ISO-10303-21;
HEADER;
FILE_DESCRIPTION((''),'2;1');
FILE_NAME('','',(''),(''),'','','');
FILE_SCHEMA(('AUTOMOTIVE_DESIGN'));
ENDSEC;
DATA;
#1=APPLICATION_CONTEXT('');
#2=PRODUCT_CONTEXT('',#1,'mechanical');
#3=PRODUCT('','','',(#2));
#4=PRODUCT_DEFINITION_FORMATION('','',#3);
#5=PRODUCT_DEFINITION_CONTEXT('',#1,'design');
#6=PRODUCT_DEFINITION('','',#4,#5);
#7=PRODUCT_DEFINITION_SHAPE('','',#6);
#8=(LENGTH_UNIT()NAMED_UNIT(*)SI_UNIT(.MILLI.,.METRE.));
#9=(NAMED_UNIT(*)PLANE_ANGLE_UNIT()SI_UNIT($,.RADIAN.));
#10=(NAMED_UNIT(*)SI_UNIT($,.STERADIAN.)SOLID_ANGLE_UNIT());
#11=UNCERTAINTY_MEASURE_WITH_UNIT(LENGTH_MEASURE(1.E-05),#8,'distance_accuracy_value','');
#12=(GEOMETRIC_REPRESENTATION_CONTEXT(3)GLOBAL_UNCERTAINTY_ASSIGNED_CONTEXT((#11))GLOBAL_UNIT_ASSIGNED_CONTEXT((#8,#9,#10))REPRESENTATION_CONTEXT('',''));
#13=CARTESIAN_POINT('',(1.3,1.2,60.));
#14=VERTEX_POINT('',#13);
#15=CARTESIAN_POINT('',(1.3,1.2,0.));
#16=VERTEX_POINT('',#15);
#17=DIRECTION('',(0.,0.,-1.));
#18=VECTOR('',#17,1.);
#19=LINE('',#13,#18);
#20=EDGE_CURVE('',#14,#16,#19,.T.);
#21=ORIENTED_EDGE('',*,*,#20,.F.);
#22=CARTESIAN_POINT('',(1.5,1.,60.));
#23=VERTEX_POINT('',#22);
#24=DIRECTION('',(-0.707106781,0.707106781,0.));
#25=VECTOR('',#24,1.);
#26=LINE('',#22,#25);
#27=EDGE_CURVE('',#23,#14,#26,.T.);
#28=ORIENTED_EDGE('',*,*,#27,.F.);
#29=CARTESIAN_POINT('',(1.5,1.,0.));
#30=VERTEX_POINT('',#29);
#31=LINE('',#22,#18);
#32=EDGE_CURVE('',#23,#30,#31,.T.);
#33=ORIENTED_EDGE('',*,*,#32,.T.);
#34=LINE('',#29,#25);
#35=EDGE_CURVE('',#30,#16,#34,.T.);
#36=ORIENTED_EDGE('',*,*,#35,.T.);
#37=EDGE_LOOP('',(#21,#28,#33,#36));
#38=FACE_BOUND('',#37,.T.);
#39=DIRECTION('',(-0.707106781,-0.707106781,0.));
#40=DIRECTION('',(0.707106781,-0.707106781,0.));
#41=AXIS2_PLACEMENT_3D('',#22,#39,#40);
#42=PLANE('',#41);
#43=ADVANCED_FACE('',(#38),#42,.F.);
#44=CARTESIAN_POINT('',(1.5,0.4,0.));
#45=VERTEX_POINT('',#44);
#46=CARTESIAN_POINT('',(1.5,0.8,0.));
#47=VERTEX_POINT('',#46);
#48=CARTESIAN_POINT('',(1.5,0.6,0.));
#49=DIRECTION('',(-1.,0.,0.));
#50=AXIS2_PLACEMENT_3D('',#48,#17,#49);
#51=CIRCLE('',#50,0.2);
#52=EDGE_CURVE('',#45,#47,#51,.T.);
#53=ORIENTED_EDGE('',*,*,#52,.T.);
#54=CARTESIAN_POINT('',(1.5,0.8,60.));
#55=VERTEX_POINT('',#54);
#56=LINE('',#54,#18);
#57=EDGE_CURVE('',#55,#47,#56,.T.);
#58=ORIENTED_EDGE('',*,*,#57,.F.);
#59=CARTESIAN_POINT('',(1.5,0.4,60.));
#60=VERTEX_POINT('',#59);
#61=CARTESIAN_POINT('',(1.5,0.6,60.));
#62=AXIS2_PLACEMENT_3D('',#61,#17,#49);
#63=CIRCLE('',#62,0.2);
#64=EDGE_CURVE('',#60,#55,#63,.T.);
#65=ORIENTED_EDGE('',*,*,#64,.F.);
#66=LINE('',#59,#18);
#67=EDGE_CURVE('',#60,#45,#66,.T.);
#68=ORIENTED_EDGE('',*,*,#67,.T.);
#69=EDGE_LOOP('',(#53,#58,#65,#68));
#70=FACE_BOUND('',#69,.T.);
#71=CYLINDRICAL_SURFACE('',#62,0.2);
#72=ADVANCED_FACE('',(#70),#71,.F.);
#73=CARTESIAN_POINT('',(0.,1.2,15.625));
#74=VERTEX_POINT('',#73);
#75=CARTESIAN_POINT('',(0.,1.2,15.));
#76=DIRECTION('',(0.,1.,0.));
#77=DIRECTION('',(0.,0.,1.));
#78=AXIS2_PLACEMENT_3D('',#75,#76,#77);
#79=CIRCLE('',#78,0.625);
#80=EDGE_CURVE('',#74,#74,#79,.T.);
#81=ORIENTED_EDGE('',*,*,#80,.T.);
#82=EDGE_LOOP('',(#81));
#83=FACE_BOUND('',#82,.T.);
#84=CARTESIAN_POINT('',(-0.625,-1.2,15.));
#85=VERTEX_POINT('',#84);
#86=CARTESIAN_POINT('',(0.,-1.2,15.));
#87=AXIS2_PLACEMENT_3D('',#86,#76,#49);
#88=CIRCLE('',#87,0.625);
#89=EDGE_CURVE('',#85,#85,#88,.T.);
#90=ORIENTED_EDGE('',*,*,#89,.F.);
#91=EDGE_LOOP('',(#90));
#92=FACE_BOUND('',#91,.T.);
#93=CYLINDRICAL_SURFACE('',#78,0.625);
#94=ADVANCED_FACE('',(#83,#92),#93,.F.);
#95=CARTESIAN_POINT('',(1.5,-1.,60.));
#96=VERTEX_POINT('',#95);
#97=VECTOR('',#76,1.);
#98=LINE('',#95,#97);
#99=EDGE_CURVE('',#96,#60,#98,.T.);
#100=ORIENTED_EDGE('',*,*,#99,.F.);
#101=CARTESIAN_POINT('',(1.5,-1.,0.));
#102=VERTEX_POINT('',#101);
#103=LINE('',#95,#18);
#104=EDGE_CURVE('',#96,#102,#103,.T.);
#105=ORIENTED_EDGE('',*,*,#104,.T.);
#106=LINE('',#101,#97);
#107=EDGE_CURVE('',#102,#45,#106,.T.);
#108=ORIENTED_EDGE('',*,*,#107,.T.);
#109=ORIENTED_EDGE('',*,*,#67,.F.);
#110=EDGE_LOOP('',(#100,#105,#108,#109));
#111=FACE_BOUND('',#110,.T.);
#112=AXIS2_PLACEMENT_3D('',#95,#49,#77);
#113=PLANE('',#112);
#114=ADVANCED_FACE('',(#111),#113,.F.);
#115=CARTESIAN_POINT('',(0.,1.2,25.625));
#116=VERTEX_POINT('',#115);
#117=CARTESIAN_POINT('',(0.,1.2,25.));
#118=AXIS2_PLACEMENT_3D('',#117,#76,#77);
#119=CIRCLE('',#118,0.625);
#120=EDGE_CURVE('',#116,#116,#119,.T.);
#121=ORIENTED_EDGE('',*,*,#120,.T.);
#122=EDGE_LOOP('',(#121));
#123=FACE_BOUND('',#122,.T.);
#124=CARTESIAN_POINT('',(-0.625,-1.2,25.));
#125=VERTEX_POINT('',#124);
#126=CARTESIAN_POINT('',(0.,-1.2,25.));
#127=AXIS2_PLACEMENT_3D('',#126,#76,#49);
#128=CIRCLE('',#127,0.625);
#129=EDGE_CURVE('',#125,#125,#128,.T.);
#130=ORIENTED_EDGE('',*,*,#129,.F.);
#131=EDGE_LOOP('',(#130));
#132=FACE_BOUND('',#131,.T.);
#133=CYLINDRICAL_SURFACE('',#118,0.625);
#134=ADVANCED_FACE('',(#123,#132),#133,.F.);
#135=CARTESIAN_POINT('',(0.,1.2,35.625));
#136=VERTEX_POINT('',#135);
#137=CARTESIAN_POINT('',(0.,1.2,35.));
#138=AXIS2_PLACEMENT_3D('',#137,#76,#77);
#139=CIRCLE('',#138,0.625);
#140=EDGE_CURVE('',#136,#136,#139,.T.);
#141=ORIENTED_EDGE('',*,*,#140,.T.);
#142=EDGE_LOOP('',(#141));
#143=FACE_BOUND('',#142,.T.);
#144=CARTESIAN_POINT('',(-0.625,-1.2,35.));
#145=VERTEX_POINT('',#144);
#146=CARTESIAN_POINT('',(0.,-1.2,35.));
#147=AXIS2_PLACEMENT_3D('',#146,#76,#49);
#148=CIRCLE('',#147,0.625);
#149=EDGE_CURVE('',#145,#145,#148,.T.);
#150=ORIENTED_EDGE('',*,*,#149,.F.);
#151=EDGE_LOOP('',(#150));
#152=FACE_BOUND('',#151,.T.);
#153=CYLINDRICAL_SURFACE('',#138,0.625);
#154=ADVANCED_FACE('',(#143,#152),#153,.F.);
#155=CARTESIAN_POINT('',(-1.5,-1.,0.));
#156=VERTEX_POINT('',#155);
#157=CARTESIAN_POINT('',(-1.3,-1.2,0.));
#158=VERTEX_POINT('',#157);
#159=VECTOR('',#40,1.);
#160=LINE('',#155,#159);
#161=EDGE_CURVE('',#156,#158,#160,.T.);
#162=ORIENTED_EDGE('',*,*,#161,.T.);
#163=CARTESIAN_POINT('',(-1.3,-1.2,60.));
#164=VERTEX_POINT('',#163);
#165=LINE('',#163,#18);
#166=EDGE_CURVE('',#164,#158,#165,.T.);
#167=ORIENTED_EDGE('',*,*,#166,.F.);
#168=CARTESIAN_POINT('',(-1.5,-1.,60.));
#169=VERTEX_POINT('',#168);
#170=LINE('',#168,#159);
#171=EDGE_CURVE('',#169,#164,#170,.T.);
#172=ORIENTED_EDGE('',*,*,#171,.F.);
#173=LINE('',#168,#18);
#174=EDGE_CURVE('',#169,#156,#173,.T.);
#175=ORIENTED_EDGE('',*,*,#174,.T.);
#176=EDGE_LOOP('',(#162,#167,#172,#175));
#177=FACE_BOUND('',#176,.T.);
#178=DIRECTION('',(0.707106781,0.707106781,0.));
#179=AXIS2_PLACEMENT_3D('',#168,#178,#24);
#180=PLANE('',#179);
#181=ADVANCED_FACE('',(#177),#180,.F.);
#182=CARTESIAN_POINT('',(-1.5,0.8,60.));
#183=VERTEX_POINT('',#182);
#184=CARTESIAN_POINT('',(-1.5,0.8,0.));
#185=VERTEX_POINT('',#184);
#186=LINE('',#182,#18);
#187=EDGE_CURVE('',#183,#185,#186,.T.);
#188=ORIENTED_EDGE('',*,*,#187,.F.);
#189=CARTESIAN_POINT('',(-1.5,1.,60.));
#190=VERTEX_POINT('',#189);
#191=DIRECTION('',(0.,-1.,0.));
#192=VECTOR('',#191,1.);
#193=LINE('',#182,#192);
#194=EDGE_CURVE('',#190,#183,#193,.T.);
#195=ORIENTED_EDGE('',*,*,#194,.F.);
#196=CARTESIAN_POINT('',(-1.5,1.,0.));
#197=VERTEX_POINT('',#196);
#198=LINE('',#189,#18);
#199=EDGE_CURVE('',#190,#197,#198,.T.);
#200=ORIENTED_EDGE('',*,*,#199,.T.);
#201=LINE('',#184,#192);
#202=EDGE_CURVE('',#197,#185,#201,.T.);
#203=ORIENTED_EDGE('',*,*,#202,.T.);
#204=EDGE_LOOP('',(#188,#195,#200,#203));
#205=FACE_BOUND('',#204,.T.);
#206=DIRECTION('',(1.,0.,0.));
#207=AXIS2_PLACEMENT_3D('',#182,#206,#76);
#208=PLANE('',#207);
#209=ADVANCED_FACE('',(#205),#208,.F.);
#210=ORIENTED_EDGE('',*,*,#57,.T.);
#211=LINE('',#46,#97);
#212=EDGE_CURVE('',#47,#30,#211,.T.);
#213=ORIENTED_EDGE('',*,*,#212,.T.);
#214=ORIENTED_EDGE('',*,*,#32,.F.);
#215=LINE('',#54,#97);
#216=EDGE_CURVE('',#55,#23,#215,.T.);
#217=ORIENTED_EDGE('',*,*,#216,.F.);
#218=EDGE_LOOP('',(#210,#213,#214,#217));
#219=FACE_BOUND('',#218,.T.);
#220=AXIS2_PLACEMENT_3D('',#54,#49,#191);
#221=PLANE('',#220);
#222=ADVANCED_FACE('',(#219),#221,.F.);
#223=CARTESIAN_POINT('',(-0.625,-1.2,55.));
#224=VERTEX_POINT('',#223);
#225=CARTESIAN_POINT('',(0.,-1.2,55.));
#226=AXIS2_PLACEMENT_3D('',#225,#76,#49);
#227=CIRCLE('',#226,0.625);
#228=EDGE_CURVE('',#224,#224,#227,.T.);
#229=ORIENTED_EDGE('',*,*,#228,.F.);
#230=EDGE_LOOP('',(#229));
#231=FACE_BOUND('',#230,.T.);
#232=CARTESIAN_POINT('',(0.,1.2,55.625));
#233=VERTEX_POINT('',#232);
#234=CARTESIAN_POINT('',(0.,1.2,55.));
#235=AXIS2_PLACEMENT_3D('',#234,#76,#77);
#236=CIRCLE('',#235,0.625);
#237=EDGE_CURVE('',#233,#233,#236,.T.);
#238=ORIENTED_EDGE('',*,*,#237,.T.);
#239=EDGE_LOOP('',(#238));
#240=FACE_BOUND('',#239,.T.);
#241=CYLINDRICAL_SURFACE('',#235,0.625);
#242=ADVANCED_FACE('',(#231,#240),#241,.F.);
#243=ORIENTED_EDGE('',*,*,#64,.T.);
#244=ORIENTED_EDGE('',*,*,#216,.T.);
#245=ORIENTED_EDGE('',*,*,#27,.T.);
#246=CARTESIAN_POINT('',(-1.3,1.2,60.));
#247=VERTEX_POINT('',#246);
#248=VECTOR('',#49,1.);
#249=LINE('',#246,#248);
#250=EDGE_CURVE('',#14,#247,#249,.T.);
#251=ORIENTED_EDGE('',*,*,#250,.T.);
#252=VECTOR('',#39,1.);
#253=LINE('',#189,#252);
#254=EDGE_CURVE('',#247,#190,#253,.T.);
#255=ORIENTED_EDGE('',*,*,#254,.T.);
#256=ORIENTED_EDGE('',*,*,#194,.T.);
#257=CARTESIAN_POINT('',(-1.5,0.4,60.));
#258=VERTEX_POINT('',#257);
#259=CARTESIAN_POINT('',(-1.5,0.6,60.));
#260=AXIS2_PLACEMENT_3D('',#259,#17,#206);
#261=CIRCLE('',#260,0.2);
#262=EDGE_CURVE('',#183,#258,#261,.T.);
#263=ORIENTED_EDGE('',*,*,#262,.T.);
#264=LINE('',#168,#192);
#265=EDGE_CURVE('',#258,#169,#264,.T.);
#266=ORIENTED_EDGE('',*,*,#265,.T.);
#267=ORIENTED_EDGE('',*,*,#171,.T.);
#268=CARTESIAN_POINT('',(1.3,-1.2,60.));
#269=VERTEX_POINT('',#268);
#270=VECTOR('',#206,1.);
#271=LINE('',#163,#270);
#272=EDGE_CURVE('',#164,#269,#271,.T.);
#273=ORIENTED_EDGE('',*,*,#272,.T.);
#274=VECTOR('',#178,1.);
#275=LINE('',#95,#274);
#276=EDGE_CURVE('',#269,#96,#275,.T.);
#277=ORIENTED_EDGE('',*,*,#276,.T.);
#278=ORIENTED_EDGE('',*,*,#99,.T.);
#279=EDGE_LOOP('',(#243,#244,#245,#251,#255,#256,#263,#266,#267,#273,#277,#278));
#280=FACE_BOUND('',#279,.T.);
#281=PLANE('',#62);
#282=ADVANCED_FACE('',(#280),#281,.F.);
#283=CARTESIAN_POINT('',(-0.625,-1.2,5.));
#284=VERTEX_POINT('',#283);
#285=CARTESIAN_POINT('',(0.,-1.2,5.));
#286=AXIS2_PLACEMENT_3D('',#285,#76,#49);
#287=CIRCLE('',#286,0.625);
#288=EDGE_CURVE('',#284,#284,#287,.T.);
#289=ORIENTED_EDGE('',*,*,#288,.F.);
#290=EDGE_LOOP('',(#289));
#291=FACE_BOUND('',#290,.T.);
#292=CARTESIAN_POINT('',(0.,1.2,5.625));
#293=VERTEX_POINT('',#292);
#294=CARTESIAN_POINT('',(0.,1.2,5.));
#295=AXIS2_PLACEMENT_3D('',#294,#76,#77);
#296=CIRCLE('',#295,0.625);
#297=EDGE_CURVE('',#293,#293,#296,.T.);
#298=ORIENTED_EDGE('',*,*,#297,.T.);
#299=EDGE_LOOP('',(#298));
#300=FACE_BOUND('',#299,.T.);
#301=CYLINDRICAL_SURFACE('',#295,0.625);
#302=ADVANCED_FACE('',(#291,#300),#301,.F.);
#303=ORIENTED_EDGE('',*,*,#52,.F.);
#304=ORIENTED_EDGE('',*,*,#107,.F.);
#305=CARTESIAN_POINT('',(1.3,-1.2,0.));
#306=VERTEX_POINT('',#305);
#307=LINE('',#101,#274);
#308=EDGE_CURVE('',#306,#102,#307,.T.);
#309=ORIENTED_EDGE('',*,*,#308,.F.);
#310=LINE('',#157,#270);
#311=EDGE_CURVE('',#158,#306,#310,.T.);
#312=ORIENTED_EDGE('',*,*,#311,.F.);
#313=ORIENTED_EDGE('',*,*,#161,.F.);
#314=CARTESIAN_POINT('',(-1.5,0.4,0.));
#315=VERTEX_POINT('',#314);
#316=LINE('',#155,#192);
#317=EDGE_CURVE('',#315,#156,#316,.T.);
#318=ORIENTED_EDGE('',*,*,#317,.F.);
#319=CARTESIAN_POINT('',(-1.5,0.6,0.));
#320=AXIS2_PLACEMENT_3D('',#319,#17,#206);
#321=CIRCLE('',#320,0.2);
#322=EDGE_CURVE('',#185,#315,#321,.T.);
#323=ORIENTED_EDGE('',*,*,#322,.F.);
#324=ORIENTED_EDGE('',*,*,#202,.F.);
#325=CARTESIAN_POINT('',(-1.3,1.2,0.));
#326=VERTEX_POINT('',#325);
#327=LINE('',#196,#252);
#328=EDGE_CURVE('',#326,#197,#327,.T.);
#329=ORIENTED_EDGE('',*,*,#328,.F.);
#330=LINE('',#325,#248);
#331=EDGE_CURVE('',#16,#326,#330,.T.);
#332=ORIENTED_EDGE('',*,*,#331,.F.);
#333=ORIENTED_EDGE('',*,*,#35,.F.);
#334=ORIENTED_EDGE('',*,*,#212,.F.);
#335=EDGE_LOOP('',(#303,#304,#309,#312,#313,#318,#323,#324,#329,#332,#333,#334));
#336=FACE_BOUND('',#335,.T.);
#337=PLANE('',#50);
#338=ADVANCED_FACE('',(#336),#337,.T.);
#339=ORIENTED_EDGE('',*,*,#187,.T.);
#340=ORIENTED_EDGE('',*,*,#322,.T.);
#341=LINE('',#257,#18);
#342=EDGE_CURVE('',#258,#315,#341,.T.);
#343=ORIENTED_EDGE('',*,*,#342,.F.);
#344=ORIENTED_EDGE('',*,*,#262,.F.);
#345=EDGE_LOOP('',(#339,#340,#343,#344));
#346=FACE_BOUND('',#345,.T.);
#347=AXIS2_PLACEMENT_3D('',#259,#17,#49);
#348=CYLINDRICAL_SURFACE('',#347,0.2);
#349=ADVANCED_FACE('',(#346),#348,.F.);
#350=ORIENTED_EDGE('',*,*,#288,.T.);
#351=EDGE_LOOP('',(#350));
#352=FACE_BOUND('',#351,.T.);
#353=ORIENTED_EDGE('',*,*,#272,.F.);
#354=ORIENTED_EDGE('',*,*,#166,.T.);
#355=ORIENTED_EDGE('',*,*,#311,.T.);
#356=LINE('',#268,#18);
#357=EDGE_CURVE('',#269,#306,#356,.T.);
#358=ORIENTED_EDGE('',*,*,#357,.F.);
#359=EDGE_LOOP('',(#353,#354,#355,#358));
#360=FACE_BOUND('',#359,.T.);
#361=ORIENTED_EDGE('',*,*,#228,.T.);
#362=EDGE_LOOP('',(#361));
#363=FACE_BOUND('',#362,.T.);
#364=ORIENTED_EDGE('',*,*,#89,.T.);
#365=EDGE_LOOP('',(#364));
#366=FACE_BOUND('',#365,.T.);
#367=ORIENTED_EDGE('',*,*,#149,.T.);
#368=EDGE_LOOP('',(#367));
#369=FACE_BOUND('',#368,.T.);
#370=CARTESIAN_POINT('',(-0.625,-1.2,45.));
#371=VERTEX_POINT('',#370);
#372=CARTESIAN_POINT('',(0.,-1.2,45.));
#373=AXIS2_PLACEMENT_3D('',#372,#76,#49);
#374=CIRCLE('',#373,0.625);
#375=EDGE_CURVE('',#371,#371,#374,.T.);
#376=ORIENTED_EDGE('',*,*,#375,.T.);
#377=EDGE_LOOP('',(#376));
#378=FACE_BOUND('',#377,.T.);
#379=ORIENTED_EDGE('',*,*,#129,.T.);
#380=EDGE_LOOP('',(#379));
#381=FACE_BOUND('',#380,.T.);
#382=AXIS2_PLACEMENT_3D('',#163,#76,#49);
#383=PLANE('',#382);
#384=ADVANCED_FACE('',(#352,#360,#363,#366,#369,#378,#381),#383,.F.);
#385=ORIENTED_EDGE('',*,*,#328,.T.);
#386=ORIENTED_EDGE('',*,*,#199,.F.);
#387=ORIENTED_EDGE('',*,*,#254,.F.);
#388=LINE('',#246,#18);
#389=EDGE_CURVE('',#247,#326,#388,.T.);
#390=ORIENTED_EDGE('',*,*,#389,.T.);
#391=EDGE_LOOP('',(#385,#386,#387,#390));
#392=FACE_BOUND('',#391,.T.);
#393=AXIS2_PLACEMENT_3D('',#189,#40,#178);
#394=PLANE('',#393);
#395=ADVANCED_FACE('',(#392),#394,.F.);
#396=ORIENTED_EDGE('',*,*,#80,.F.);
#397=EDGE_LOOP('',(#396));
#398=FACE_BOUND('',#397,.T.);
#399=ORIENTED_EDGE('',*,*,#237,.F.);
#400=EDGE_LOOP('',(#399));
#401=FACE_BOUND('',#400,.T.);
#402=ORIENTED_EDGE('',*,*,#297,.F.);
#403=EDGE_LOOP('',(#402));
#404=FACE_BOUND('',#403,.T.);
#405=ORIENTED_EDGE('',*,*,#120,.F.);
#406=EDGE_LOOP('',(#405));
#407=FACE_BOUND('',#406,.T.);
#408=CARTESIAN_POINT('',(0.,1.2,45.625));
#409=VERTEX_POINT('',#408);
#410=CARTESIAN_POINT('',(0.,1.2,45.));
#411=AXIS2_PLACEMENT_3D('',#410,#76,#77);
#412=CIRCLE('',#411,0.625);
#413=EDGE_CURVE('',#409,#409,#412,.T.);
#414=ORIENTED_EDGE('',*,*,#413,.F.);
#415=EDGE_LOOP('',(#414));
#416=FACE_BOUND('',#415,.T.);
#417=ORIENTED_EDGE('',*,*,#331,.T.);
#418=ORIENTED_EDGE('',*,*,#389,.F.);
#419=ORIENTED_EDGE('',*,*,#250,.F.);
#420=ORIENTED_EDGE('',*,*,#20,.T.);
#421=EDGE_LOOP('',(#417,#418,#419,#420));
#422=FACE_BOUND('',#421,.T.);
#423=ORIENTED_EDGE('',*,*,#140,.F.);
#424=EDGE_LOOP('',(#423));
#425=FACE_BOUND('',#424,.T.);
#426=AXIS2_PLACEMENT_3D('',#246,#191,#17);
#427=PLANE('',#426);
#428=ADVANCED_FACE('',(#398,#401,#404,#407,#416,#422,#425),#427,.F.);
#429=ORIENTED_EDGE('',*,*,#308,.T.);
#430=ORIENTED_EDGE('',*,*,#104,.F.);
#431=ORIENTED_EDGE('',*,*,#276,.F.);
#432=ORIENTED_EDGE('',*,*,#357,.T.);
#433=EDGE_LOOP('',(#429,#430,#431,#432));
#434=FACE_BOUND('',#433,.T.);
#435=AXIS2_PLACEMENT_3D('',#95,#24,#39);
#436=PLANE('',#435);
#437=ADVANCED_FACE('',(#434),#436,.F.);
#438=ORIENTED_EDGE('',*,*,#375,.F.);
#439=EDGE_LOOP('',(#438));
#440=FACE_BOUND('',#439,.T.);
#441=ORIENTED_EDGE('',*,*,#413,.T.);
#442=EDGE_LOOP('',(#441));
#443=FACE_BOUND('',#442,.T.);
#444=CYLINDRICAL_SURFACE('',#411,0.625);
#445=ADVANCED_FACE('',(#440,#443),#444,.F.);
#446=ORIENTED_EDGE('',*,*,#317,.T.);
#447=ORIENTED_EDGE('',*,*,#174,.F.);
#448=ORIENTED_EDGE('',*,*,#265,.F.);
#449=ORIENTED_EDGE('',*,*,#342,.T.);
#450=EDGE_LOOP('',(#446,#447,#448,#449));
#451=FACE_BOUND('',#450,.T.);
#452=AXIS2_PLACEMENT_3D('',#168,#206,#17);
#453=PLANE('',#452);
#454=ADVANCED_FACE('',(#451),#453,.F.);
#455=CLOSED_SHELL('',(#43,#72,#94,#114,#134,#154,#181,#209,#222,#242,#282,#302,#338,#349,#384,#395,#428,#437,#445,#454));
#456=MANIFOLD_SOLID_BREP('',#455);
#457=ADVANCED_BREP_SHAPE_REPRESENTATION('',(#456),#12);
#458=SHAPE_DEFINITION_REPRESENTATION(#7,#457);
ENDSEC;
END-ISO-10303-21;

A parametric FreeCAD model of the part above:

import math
import FreeCAD as App
import Part
import Sketcher

doc = App.newDocument("Part")
body = doc.addObject("PartDesign::Body", "Body")

sketch1 = body.newObject("Sketcher::SketchObject", "Sketch")
sketch1.AttachmentSupport = (doc.getObject("XY_Plane"), [""])
sketch1.MapMode = "FlatFace"
sketch1.addGeometry([
    Part.LineSegment(App.Vector(-1.3, 1.2, 0), App.Vector(-1.5, 1, 0)),
    Part.LineSegment(App.Vector(-1.5, 1, 0), App.Vector(-1.5, 0.8, 0)),
    Part.ArcOfCircle(Part.Circle(App.Vector(-1.5, 0.6, 0), App.Vector(0, 0, 1), 0.2), math.radians(-90), math.radians(90)),
    Part.LineSegment(App.Vector(-1.5, 0.4, 0), App.Vector(-1.5, -1, 0)),
    Part.LineSegment(App.Vector(-1.5, -1, 0), App.Vector(-1.3, -1.2, 0)),
    Part.LineSegment(App.Vector(-1.3, -1.2, 0), App.Vector(1.3, -1.2, 0)),
    Part.LineSegment(App.Vector(1.3, -1.2, 0), App.Vector(1.5, -1, 0)),
    Part.LineSegment(App.Vector(1.5, -1, 0), App.Vector(1.5, 0.4, 0)),
    Part.ArcOfCircle(Part.Circle(App.Vector(1.5, 0.6, 0), App.Vector(0, 0, 1), 0.2), math.radians(90), math.radians(270)),
    Part.LineSegment(App.Vector(1.5, 0.8, 0), App.Vector(1.5, 1, 0)),
    Part.LineSegment(App.Vector(1.5, 1, 0), App.Vector(1.3, 1.2, 0)),
    Part.LineSegment(App.Vector(1.3, 1.2, 0), App.Vector(-1.3, 1.2, 0)),
], False)
sketch1.addConstraint([
    Sketcher.Constraint("Coincident", 0, 2, 1, 1),
    Sketcher.Constraint("Coincident", 1, 2, 2, 2),
    Sketcher.Constraint("Coincident", 2, 1, 3, 1),
    Sketcher.Constraint("Coincident", 3, 2, 4, 1),
    Sketcher.Constraint("Coincident", 4, 2, 5, 1),
    Sketcher.Constraint("Coincident", 5, 2, 6, 1),
    Sketcher.Constraint("Coincident", 6, 2, 7, 1),
    Sketcher.Constraint("Coincident", 7, 2, 8, 2),
    Sketcher.Constraint("Coincident", 8, 1, 9, 1),
    Sketcher.Constraint("Coincident", 9, 2, 10, 1),
    Sketcher.Constraint("Coincident", 10, 2, 11, 1),
    Sketcher.Constraint("Coincident", 11, 2, 0, 1),
    Sketcher.Constraint("Vertical", 1),
    Sketcher.Constraint("Vertical", 3),
    Sketcher.Constraint("Horizontal", 5),
    Sketcher.Constraint("Vertical", 7),
    Sketcher.Constraint("Vertical", 9),
    Sketcher.Constraint("Horizontal", 11),
    Sketcher.Constraint("Equal", 2, 8),
    Sketcher.Constraint("Symmetric", 0, 2, 6, 2, -1, 1),
    Sketcher.Constraint("Symmetric", 3, 2, 9, 2, -1, 1),
    Sketcher.Constraint("Symmetric", 4, 2, 10, 2, -1, 1),
    Sketcher.Constraint("Symmetric", 2, 3, 8, 3, -2),
    Sketcher.Constraint("Symmetric", 3, 2, 6, 2, -2),
    Sketcher.Constraint("Perpendicular", 0, 4),
    Sketcher.Constraint("Perpendicular", 4, 6),
    Sketcher.Constraint("Vertical", 2, 3, 0, 2),
    Sketcher.Constraint("Vertical", 5, 2, 10, 2),
    Sketcher.Constraint("Radius", 2, 0.2),
    Sketcher.Constraint("DistanceX", 5, 1, 5, 2, 2.6),
    Sketcher.Constraint("DistanceY", 1, 2, 1, 1, 0.2),
    Sketcher.Constraint("DistanceY", 3, 2, 3, 1, 1.4),
    Sketcher.Constraint("DistanceX", 2, 3, 8, 3, 3.0),
])
pad1 = body.newObject("PartDesign::Pad", "Pad")
pad1.Profile = sketch1
pad1.Length = 60

sketch2 = body.newObject("Sketcher::SketchObject", "Sketch001")
sketch2.AttachmentSupport = (doc.getObject("XZ_Plane"), [""])
sketch2.MapMode = "FlatFace"
sketch2.AttachmentOffset = App.Placement(App.Vector(0, 0, -1.2), App.Rotation())
sketch2.addGeometry(Part.Circle(App.Vector(0, 5, 0), App.Vector(0, 0, 1), 0.6), False)
sketch2.addConstraint([
    Sketcher.Constraint("PointOnObject", 0, 3, -2),
    Sketcher.Constraint("Diameter", 0, 1.25),
    Sketcher.Constraint("DistanceY", -1, 1, 0, 3, 5.0),
])
doc.recompute()
hole = body.newObject("PartDesign::Hole", "Hole")
hole.Profile = sketch2
hole.ThreadType = "None"
hole.Diameter = 1.25
hole.DepthType = "Dimension"
hole.Depth = 2.4
hole.DrillPoint = "Flat"
hole.Reversed = True
doc.recompute()

linearpattern = body.newObject("PartDesign::LinearPattern", "LinearPattern")
linearpattern.Originals = [hole]
linearpattern.Direction = (doc.getObject("Z_Axis"), [""])
linearpattern.Mode = "offset"
linearpattern.Offset = 10
linearpattern.Occurrences = 6
body.Tip = linearpattern

doc.recompute()
